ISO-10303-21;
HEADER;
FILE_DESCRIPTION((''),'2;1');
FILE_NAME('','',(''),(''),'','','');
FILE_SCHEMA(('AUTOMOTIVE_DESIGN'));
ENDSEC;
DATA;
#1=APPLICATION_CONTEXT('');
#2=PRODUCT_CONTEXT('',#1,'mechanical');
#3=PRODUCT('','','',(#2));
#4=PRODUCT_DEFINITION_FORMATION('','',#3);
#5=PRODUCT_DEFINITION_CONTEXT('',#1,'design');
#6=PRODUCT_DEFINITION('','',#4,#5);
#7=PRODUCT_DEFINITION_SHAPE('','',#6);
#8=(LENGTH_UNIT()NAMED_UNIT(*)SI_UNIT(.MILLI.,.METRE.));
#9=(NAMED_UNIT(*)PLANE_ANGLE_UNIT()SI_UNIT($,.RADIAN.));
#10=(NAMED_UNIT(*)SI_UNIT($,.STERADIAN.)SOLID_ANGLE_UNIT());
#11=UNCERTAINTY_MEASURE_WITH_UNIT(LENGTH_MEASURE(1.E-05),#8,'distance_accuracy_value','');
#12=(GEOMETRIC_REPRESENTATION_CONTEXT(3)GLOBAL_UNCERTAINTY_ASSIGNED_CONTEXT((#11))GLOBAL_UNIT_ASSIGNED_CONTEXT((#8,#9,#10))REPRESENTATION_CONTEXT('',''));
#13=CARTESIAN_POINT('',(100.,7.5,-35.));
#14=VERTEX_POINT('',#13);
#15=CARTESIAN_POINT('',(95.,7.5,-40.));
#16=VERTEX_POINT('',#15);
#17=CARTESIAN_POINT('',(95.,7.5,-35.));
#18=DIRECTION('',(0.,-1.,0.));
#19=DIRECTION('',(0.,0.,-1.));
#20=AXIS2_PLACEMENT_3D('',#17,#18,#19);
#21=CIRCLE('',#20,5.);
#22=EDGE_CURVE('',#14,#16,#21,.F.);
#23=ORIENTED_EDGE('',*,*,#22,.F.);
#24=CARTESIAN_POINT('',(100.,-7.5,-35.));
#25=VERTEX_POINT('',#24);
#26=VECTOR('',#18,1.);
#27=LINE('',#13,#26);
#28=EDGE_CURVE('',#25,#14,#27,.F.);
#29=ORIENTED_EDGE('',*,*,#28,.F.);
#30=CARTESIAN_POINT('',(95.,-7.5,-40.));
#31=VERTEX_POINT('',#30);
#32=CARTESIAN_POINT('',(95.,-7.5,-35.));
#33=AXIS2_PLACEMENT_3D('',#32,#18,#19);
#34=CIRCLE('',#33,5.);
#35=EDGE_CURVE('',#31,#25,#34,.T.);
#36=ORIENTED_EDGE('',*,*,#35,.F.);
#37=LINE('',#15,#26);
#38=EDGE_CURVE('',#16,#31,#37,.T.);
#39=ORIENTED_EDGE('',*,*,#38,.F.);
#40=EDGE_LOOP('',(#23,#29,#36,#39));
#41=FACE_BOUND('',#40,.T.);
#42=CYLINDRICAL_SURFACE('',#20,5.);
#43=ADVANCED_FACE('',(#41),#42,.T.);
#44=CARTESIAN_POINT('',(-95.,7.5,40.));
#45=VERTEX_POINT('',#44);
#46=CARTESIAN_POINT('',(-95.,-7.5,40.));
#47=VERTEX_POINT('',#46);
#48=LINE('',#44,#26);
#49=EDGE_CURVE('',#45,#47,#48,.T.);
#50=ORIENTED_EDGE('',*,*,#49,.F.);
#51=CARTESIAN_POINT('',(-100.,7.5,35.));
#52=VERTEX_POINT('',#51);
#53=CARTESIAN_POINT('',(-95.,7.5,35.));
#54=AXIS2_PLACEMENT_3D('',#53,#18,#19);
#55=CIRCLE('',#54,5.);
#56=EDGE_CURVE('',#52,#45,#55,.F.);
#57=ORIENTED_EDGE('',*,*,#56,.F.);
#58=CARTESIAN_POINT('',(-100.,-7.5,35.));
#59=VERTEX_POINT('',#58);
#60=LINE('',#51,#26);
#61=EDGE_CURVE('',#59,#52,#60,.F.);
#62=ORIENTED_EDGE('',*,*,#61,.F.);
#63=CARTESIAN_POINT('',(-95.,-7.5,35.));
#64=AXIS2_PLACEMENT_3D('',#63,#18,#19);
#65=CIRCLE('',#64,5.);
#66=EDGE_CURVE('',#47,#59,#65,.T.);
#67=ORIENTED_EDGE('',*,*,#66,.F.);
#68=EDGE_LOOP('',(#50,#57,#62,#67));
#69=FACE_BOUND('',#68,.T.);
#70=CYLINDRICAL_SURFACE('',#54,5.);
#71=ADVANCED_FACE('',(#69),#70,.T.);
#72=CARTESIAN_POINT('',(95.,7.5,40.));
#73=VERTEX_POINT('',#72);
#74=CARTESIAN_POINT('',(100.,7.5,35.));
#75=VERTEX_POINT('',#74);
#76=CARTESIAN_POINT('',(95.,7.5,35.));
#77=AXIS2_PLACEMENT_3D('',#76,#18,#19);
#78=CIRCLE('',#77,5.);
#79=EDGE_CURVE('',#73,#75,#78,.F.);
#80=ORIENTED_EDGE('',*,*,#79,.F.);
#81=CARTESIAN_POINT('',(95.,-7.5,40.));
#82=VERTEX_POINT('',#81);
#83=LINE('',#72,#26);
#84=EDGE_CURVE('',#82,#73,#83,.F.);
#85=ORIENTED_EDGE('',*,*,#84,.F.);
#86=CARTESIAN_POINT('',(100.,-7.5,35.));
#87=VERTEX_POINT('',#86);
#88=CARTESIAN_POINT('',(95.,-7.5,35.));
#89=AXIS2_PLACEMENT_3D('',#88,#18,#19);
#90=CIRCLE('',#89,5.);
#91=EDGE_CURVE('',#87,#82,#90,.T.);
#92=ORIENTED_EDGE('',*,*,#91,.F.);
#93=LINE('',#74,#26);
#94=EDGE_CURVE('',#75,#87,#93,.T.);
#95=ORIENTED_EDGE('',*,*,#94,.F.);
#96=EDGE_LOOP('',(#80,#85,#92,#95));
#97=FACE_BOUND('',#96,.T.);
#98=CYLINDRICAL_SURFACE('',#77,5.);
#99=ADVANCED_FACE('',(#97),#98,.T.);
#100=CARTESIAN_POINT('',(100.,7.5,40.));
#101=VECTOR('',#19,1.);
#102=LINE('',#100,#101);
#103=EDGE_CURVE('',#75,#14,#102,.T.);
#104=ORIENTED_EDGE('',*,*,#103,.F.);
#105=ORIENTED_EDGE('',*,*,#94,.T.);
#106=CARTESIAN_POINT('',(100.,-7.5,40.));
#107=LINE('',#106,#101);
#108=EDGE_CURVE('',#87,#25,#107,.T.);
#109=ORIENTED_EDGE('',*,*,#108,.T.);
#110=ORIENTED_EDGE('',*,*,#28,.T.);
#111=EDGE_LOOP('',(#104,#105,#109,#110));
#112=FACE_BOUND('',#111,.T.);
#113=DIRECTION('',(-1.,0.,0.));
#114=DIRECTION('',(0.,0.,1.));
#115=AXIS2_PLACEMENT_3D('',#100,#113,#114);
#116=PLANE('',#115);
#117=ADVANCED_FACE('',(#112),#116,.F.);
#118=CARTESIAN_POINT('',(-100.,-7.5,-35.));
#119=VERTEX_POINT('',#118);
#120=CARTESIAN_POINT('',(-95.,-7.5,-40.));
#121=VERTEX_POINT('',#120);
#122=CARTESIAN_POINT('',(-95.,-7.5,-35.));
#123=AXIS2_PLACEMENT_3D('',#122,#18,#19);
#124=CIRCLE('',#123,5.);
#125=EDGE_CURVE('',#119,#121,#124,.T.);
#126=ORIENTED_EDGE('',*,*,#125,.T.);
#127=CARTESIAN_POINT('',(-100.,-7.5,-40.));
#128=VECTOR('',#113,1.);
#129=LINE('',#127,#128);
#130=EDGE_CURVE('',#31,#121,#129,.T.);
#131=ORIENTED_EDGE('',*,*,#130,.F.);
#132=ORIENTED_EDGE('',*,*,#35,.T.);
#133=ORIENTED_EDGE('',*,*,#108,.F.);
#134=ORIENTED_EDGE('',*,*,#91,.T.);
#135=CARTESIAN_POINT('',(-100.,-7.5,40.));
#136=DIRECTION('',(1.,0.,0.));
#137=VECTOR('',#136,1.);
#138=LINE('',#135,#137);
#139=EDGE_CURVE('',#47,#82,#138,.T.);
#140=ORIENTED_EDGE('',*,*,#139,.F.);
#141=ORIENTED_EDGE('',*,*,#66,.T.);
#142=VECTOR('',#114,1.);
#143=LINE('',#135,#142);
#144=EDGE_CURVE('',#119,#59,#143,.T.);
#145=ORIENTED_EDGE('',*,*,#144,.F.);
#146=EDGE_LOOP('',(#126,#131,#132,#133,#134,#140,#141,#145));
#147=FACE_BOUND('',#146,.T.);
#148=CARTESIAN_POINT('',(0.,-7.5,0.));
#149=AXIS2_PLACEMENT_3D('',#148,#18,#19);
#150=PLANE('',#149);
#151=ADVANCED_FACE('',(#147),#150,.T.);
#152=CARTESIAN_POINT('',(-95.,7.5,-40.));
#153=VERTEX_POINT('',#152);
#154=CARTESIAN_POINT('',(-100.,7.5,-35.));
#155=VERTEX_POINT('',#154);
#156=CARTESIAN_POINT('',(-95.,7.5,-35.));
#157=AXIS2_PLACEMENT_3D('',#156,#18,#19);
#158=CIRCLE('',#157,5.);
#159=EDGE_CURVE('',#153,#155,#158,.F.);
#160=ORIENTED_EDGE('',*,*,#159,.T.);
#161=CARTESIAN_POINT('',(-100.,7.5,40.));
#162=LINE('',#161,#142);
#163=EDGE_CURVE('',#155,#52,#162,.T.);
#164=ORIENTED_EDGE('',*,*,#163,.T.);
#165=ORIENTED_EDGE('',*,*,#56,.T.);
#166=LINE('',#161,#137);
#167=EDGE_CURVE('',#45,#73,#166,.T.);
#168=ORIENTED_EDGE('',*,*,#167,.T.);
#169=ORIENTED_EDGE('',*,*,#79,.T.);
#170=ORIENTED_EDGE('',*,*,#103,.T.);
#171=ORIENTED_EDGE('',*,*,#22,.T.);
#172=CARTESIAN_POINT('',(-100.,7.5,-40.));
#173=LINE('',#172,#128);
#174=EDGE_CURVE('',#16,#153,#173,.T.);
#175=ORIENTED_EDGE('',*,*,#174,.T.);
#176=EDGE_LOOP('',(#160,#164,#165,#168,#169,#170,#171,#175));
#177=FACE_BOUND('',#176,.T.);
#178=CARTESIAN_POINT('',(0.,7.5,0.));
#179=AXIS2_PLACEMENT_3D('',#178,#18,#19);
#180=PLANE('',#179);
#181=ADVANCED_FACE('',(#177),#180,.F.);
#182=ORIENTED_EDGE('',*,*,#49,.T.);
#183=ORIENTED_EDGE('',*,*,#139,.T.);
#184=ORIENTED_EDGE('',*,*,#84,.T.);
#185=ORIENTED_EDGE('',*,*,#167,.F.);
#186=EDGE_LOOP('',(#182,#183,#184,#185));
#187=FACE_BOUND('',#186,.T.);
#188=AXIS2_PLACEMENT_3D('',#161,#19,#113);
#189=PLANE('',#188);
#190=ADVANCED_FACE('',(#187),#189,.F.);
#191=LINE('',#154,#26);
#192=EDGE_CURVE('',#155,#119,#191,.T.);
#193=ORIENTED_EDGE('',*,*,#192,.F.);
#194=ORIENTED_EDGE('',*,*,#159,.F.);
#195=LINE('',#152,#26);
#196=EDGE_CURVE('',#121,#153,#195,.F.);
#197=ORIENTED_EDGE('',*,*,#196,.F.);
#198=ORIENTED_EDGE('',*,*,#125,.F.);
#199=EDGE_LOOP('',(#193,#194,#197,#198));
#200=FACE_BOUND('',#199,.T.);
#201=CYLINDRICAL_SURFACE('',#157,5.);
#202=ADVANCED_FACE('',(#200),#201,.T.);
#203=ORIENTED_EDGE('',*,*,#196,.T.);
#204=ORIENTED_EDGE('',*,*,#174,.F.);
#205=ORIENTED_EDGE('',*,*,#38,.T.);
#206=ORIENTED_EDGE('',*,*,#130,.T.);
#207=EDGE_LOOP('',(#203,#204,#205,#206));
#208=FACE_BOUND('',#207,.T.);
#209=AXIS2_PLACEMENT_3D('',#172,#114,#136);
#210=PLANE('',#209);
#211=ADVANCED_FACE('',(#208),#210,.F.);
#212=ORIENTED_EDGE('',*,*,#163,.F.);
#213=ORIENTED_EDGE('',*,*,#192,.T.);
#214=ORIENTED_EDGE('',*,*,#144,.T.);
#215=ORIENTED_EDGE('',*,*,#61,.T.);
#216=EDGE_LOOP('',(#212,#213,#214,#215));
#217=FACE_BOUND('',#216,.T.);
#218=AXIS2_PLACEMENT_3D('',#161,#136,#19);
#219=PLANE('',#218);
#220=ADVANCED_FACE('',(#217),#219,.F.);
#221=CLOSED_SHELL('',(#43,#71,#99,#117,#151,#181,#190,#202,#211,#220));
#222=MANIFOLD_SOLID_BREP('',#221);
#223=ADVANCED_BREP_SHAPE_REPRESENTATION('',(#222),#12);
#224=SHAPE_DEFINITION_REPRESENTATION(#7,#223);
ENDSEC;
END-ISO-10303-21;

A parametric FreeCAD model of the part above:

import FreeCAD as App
import Part
import Sketcher
from FreeCAD import Vector


def edges_at(feature, points):
    """Names of the edges that pass closest to the given points."""
    edges = feature.Shape.Edges
    near = lambda p: min(range(len(edges)), key=lambda i: edges[i].distToShape(Part.Vertex(*p))[0])
    return sorted({f"Edge{near(p) + 1}" for p in points})


def add_polygon(sketch, points):
    """Adds a closed chain of lines whose ends are joined by coincident constraints."""
    first, n = sketch.GeometryCount, len(points)
    for a, b in zip(points, points[1:] + points[:1]):
        sketch.addGeometry(Part.LineSegment(App.Vector(*a, 0), App.Vector(*b, 0)), False)
    for i in range(n):
        sketch.addConstraint(Sketcher.Constraint("Coincident", first + i, 2, first + (i + 1) % n, 1))

doc = App.newDocument("Part")
body = doc.addObject("PartDesign::Body", "Body")

# Sketch on XZ plane
sketch1 = doc.addObject("Sketcher::SketchObject", "Sketch")
body.addObject(sketch1)
sketch1.AttachmentSupport = (doc.XZ_Plane, [""])
sketch1.MapMode = "FlatFace"
add_polygon(sketch1, [(-100, -40), (-100, 40), (100, 40), (100, -40)])  # lines 0-3
sketch1.addConstraint(Sketcher.Constraint("Vertical", 0))
sketch1.addConstraint(Sketcher.Constraint("Horizontal", 1))
sketch1.addConstraint(Sketcher.Constraint("Vertical", 2))
sketch1.addConstraint(Sketcher.Constraint("Horizontal", 3))
sketch1.addConstraint(Sketcher.Constraint("Symmetric", 0, 2, 2, 2, -1, 1))
sketch1.addConstraint(Sketcher.Constraint("DistanceX", 1, 1, 1, 2, 200.0))
sketch1.addConstraint(Sketcher.Constraint("DistanceY", 0, 1, 0, 2, 80.0))
pad1 = doc.addObject("PartDesign::Pad", "Pad")
body.addObject(pad1)
pad1.Profile = sketch1
pad1.Length = 15
pad1.Midplane = True
doc.recompute()

fillet = doc.addObject("PartDesign::Fillet", "Fillet")
body.addObject(fillet)
fillet.Base = (pad1, edges_at(pad1, [
    (100, 0, 40),
    (-100, 0, 40),
    (-100, 0, -40),
    (100, 0, -40),
]))
fillet.Radius = 5

doc.recompute()
